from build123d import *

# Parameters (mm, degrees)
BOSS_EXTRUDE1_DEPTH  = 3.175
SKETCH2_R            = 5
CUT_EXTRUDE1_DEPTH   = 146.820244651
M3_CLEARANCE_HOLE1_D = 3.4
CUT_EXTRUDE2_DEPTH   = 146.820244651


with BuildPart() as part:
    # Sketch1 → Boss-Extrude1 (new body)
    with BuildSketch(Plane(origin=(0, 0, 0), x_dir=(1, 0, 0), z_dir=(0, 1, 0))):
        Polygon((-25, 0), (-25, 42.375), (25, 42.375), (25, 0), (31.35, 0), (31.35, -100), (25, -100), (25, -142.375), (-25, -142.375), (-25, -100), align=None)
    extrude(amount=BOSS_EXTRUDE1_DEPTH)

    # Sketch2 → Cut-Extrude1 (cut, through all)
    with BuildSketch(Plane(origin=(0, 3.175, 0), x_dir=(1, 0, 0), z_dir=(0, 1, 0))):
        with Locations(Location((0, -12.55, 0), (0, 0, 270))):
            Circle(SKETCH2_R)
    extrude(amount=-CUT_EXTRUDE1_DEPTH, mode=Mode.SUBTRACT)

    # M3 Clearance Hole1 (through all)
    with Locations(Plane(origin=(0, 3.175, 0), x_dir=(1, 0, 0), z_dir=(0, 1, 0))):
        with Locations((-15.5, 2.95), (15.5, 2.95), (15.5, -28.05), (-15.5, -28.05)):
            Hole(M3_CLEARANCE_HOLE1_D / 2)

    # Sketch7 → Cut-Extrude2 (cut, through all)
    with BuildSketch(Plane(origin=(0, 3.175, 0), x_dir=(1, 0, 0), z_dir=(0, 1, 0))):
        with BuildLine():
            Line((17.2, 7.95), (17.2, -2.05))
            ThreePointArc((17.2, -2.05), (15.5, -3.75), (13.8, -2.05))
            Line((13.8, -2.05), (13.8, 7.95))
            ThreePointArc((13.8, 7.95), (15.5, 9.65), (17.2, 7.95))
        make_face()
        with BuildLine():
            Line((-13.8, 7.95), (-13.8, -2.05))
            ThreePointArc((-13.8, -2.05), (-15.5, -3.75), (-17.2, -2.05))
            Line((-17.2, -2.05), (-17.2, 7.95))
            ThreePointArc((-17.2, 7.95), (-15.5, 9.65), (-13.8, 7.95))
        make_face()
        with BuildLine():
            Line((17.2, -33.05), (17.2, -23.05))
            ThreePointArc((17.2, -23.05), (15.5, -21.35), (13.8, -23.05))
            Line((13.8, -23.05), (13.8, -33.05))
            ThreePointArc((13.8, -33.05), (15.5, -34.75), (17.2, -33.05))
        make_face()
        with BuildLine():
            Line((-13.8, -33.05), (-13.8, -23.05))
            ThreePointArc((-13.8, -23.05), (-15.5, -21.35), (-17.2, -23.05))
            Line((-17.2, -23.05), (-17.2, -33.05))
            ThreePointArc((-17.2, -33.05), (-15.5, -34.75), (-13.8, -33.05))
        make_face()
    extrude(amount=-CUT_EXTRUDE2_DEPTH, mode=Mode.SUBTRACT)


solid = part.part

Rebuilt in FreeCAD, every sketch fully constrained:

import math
import FreeCAD as App
import Part
import Sketcher
Q = App.Units.Quantity


def add_polygon(sketch, points):
    """Adds a closed chain of lines whose ends are joined by coincident constraints."""
    first, n = sketch.GeometryCount, len(points)
    for a, b in zip(points, points[1:] + points[:1]):
        sketch.addGeometry(Part.LineSegment(App.Vector(*a, 0), App.Vector(*b, 0)), False)
    for i in range(n):
        sketch.addConstraint(Sketcher.Constraint("Coincident", first + i, 2, first + (i + 1) % n, 1))

doc = App.newDocument("Part")
body = doc.addObject("PartDesign::Body", "Body")

# Sketch on XZ plane
sketch1 = body.newObject("Sketcher::SketchObject", "Sketch")
sketch1.AttachmentSupport = (doc.getObject("XZ_Plane"), [""])
sketch1.MapMode = "FlatFace"
add_polygon(sketch1, [(-25, -42), (-25, 142), (25, 142), (25, 100), (31, 100), (31, 0), (25, 0), (25, -42)])  # lines 0-7
sketch1.addConstraint([
    Sketcher.Constraint("Vertical", 0),
    Sketcher.Constraint("Horizontal", 1),
    Sketcher.Constraint("Vertical", 2),
    Sketcher.Constraint("Horizontal", 3),
    Sketcher.Constraint("Vertical", 4),
    Sketcher.Constraint("Horizontal", 5),
    Sketcher.Constraint("Vertical", 6),
    Sketcher.Constraint("Horizontal", 7),
    Sketcher.Constraint("PointOnObject", 4, 2, -1),
    Sketcher.Constraint("Vertical", 2, 2, 5, 2),
    Sketcher.Constraint("Equal", 2, 6),
    Sketcher.Constraint("DistanceX", 1, 1, 1, 2, Q("50 mm")),
    Sketcher.Constraint("DistanceY", 4, 2, 4, 1, Q("100 mm")),
    Sketcher.Constraint("DistanceX", 0, 2, -1, 1, Q("25 mm")),
    Sketcher.Constraint("DistanceX", 3, 1, 3, 2, Q("6.35 mm")),
    Sketcher.Constraint("DistanceY", 0, 1, 0, 2, Q("184.75 mm")),
])
pad1 = body.newObject("PartDesign::Pad", "Pad")
pad1.Profile = sketch1
pad1.Length = 3.175
pad1.Reversed = True

# Sketch on XZ plane
sketch2 = body.newObject("Sketcher::SketchObject", "Sketch001")
sketch2.AttachmentSupport = (doc.getObject("XZ_Plane"), [""])
sketch2.MapMode = "FlatFace"
sketch2.AttachmentOffset = App.Placement(App.Vector(0, 0, -3.175), App.Rotation())
sketch2.addGeometry(Part.Circle(App.Vector(0, 13, 0), App.Vector(0, 0, 1), 5), False)
sketch2.addConstraint([
    Sketcher.Constraint("PointOnObject", 0, 3, -2),
    Sketcher.Constraint("Diameter", 0, Q("10 mm")),
    Sketcher.Constraint("DistanceY", -1, 1, 0, 3, Q("12.55 mm")),
])
pocket1 = body.newObject("PartDesign::Pocket", "Pocket")
pocket1.Profile = sketch2
pocket1.Type = "ThroughAll"
pocket1.Reversed = True

# Sketch on XZ plane
sketch3 = body.newObject("Sketcher::SketchObject", "Sketch002")
sketch3.AttachmentSupport = (doc.getObject("XZ_Plane"), [""])
sketch3.MapMode = "FlatFace"
sketch3.AttachmentOffset = App.Placement(App.Vector(0, 0, -3.175), App.Rotation())
sketch3.addGeometry([
    Part.Circle(App.Vector(-15.5, -3, 0), App.Vector(0, 0, 1), 1.7),
    Part.Circle(App.Vector(15.5, -3, 0), App.Vector(0, 0, 1), 1.7),
    Part.Circle(App.Vector(15.5, 28.1, 0), App.Vector(0, 0, 1), 1.7),
    Part.Circle(App.Vector(-15.5, 28.1, 0), App.Vector(0, 0, 1), 1.7),
], False)
sketch3.addConstraint([
    Sketcher.Constraint("Equal", 0, 1),
    Sketcher.Constraint("Equal", 1, 2),
    Sketcher.Constraint("Equal", 2, 3),
    Sketcher.Constraint("Symmetric", 0, 3, 1, 3, -2),
    Sketcher.Constraint("Symmetric", 2, 3, 3, 3, -2),
    Sketcher.Constraint("Vertical", 1, 3, 2, 3),
    Sketcher.Constraint("Diameter", 0, Q("3.4 mm")),
    Sketcher.Constraint("DistanceX", 0, 3, 1, 3, Q("31 mm")),
    Sketcher.Constraint("DistanceY", 1, 3, 2, 3, Q("31 mm")),
    Sketcher.Constraint("DistanceY", 0, 3, -1, 1, Q("2.95 mm")),
])
doc.recompute()
hole = body.newObject("PartDesign::Hole", "Hole")
hole.Profile = sketch3
hole.ThreadType = "None"
hole.Diameter = 3.4
hole.DepthType = "ThroughAll"
hole.Reversed = True

# Sketch on XZ plane
sketch4 = body.newObject("Sketcher::SketchObject", "Sketch003")
sketch4.AttachmentSupport = (doc.getObject("XZ_Plane"), [""])
sketch4.MapMode = "FlatFace"
sketch4.AttachmentOffset = App.Placement(App.Vector(0, 0, -3.175), App.Rotation())
sketch4.addGeometry([
    Part.LineSegment(App.Vector(17.2, 2, 0), App.Vector(17.2, -8, 0)),  # 0
    Part.ArcOfCircle(Part.Circle(App.Vector(15.5, -8, 0), App.Vector(0, 0, 1), 1.7), math.radians(180), math.radians(360)),  # 1
    Part.LineSegment(App.Vector(13.8, -8, 0), App.Vector(13.8, 2, 0)),  # 2
    Part.ArcOfCircle(Part.Circle(App.Vector(15.5, 2, 0), App.Vector(0, 0, 1), 1.7), math.radians(0), math.radians(180)),  # 3
    Part.LineSegment(App.Vector(-13.8, 2, 0), App.Vector(-13.8, -8, 0)),  # 4
    Part.ArcOfCircle(Part.Circle(App.Vector(-15.5, -8, 0), App.Vector(0, 0, 1), 1.7), math.radians(180), math.radians(360)),  # 5
    Part.LineSegment(App.Vector(-17.2, -8, 0), App.Vector(-17.2, 2, 0)),  # 6
    Part.ArcOfCircle(Part.Circle(App.Vector(-15.5, 2, 0), App.Vector(0, 0, 1), 1.7), math.radians(0), math.radians(180)),  # 7
    Part.LineSegment(App.Vector(17.2, 33, 0), App.Vector(17.2, 23.1, 0)),  # 8
    Part.ArcOfCircle(Part.Circle(App.Vector(15.5, 23.1, 0), App.Vector(0, 0, 1), 1.7), math.radians(180), math.radians(360)),  # 9
    Part.LineSegment(App.Vector(13.8, 23.1, 0), App.Vector(13.8, 33, 0)),  # 10
    Part.ArcOfCircle(Part.Circle(App.Vector(15.5, 33, 0), App.Vector(0, 0, 1), 1.7), math.radians(0), math.radians(180)),  # 11
    Part.LineSegment(App.Vector(-13.8, 33, 0), App.Vector(-13.8, 23.1, 0)),  # 12
    Part.ArcOfCircle(Part.Circle(App.Vector(-15.5, 23.1, 0), App.Vector(0, 0, 1), 1.7), math.radians(180), math.radians(360)),  # 13
    Part.LineSegment(App.Vector(-17.2, 23.1, 0), App.Vector(-17.2, 33, 0)),  # 14
    Part.ArcOfCircle(Part.Circle(App.Vector(-15.5, 33, 0), App.Vector(0, 0, 1), 1.7), math.radians(0), math.radians(180)),  # 15
], False)
sketch4.addConstraint([
    Sketcher.Constraint("Tangent", 0, 2, 1, 2),
    Sketcher.Constraint("Tangent", 1, 1, 2, 1),
    Sketcher.Constraint("Tangent", 2, 2, 3, 2),
    Sketcher.Constraint("Tangent", 3, 1, 0, 1),
    Sketcher.Constraint("Tangent", 4, 2, 5, 2),
    Sketcher.Constraint("Tangent", 5, 1, 6, 1),
    Sketcher.Constraint("Tangent", 6, 2, 7, 2),
    Sketcher.Constraint("Tangent", 7, 1, 4, 1),
    Sketcher.Constraint("Tangent", 8, 2, 9, 2),
    Sketcher.Constraint("Tangent", 9, 1, 10, 1),
    Sketcher.Constraint("Tangent", 10, 2, 11, 2),
    Sketcher.Constraint("Tangent", 11, 1, 8, 1),
    Sketcher.Constraint("Tangent", 12, 2, 13, 2),
    Sketcher.Constraint("Tangent", 13, 1, 14, 1),
    Sketcher.Constraint("Tangent", 14, 2, 15, 2),
    Sketcher.Constraint("Tangent", 15, 1, 12, 1),
    Sketcher.Constraint("Vertical", 0),
    Sketcher.Constraint("Vertical", 2),
    Sketcher.Constraint("Vertical", 4),
    Sketcher.Constraint("Vertical", 6),
    Sketcher.Constraint("Vertical", 8),
    Sketcher.Constraint("Vertical", 10),
    Sketcher.Constraint("Vertical", 12),
    Sketcher.Constraint("Vertical", 14),
    Sketcher.Constraint("Equal", 3, 5),
    Sketcher.Constraint("Equal", 7, 9),
    Sketcher.Constraint("Equal", 11, 13),
    Sketcher.Constraint("Symmetric", 1, 3, 5, 3, -2),
    Sketcher.Constraint("Symmetric", 9, 3, 13, 3, -2),
    Sketcher.Constraint("Horizontal", 3, 3, 7, 3),
    Sketcher.Constraint("Horizontal", 11, 3, 15, 3),
    Sketcher.Constraint("Vertical", 3, 3, 9, 3),
    Sketcher.Constraint("Equal", 6, 8),
    Sketcher.Constraint("Radius", 1, Q("1.7 mm")),
    Sketcher.Constraint("DistanceY", 0, 2, 0, 1, Q("10 mm")),
    Sketcher.Constraint("DistanceX", 5, 3, 1, 3, Q("31 mm")),
    Sketcher.Constraint("DistanceY", 3, 3, 9, 3, Q("21 mm")),
    Sketcher.Constraint("DistanceY", 1, 3, -1, 1, Q("7.95 mm")),
])
pocket2 = body.newObject("PartDesign::Pocket", "Pocket001")
pocket2.Profile = sketch4
pocket2.Type = "ThroughAll"
pocket2.Reversed = True

doc.recompute()
